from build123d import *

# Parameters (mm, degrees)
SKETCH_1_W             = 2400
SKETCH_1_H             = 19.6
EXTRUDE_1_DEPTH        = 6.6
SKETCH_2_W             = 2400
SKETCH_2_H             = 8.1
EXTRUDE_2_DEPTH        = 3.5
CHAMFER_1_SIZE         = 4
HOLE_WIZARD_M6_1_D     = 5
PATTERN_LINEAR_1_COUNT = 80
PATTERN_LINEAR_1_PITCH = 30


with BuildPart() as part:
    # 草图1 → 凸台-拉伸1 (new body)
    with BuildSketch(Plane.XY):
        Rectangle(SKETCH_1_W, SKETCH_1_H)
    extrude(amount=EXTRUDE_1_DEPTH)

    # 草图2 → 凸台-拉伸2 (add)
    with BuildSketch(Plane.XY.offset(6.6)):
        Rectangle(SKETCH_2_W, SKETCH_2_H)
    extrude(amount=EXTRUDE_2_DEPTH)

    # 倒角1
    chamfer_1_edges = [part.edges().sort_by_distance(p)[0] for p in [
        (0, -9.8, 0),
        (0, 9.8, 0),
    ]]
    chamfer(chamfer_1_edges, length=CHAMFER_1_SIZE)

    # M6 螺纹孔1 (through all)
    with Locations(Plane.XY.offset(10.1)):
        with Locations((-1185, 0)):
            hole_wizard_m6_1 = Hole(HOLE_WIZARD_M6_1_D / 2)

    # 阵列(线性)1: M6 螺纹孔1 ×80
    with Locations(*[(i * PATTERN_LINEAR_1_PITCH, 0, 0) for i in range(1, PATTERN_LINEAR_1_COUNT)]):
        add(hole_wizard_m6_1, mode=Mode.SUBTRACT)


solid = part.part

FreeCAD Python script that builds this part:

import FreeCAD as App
import Part
import Sketcher
from FreeCAD import Vector
Q = App.Units.Quantity


def edges_at(feature, points):
    """Names of the edges that pass closest to the given points."""
    edges = feature.Shape.Edges
    near = lambda p: min(range(len(edges)), key=lambda i: edges[i].distToShape(Part.Vertex(*p))[0])
    return sorted({f"Edge{near(p) + 1}" for p in points})

doc = App.newDocument("Part")
params = doc.addObject("Spreadsheet::Sheet", "Params")
for row, (alias, value) in enumerate([
    ("sketch1_width", "2400 mm"),
    ("sketch1_height", "19.6 mm"),
    ("pad1_length", "6.6 mm"),
    ("sketch2_width", "2400 mm"),
    ("sketch2_height", "8.1 mm"),
    ("pad2_length", "3.5 mm"),
    ("chamfer_size", "4 mm"),
    ("sketch3_diameter", "5 mm"),
    ("hole_diameter", "5 mm"),
    ("linearpattern_pitch", "30 mm"),
], start=1):
    params.set(f"A{row}", alias)
    params.set(f"B{row}", "=" + value)
    params.setAlias(f"B{row}", alias)

body = doc.addObject("PartDesign::Body", "Body")

# Sketch on XY plane
sketch1 = body.newObject("Sketcher::SketchObject", "Sketch")
sketch1.AttachmentSupport = (doc.getObject("XY_Plane"), [""])
sketch1.MapMode = "FlatFace"
sketch1.addGeometry([
    Part.LineSegment(Vector(-1200, 10, 0), Vector(-1200, -10, 0)),
    Part.LineSegment(Vector(-1200, -10, 0), Vector(1200, -10, 0)),
    Part.LineSegment(Vector(1200, -10, 0), Vector(1200, 10, 0)),
    Part.LineSegment(Vector(1200, 10, 0), Vector(-1200, 10, 0)),
], False)
sketch1.addConstraint([
    Sketcher.Constraint("Coincident", 0, 2, 1, 1),
    Sketcher.Constraint("Coincident", 1, 2, 2, 1),
    Sketcher.Constraint("Coincident", 2, 2, 3, 1),
    Sketcher.Constraint("Coincident", 3, 2, 0, 1),
    Sketcher.Constraint("Vertical", 0),
    Sketcher.Constraint("Horizontal", 1),
    Sketcher.Constraint("Vertical", 2),
    Sketcher.Constraint("Horizontal", 3),
    Sketcher.Constraint("Symmetric", 0, 2, 2, 2, -1, 1),
    Sketcher.Constraint("DistanceX", 1, 1, 1, 2, Q("2400 mm")),
    Sketcher.Constraint("DistanceY", 0, 2, 0, 1, Q("19.6 mm")),
])
sketch1.setExpression("Constraints[9]", "Params.sketch1_width")
sketch1.setExpression("Constraints[10]", "Params.sketch1_height")
pad1 = body.newObject("PartDesign::Pad", "Pad")
pad1.Profile = sketch1
pad1.setExpression("Length", "Params.pad1_length")

# Sketch on XY plane
sketch2 = body.newObject("Sketcher::SketchObject", "Sketch001")
sketch2.AttachmentSupport = (doc.getObject("XY_Plane"), [""])
sketch2.MapMode = "FlatFace"
sketch2.AttachmentOffset = App.Placement(Vector(0, 0, 6.6), App.Rotation())
sketch2.addGeometry([
    Part.LineSegment(Vector(-1200, 4, 0), Vector(-1200, -4, 0)),
    Part.LineSegment(Vector(-1200, -4, 0), Vector(1200, -4, 0)),
    Part.LineSegment(Vector(1200, -4, 0), Vector(1200, 4, 0)),
    Part.LineSegment(Vector(1200, 4, 0), Vector(-1200, 4, 0)),
], False)
sketch2.addConstraint([
    Sketcher.Constraint("Coincident", 0, 2, 1, 1),
    Sketcher.Constraint("Coincident", 1, 2, 2, 1),
    Sketcher.Constraint("Coincident", 2, 2, 3, 1),
    Sketcher.Constraint("Coincident", 3, 2, 0, 1),
    Sketcher.Constraint("Vertical", 0),
    Sketcher.Constraint("Horizontal", 1),
    Sketcher.Constraint("Vertical", 2),
    Sketcher.Constraint("Horizontal", 3),
    Sketcher.Constraint("Symmetric", 0, 2, 2, 2, -1, 1),
    Sketcher.Constraint("DistanceX", 1, 1, 1, 2, Q("2400 mm")),
    Sketcher.Constraint("DistanceY", 0, 2, 0, 1, Q("8.1 mm")),
])
sketch2.setExpression("Constraints[9]", "Params.sketch2_width")
sketch2.setExpression("Constraints[10]", "Params.sketch2_height")
pad2 = body.newObject("PartDesign::Pad", "Pad001")
pad2.Profile = sketch2
pad2.setExpression("Length", "Params.pad2_length")
doc.recompute()

chamfer = body.newObject("PartDesign::Chamfer", "Chamfer")
chamfer.Base = (pad2, edges_at(pad2, [(0, -9.8, 0), (0, 9.8, 0)]))
chamfer.setExpression("Size", "Params.chamfer_size")

# Sketch on XY plane
sketch3 = body.newObject("Sketcher::SketchObject", "Sketch002")
sketch3.AttachmentSupport = (doc.getObject("XY_Plane"), [""])
sketch3.MapMode = "FlatFace"
sketch3.AttachmentOffset = App.Placement(Vector(0, 0, 10.1), App.Rotation())
sketch3.addGeometry(Part.Circle(Vector(-1185, 0, 0), Vector(0, 0, 1), 2.5), False)
sketch3.addConstraint([
    Sketcher.Constraint("PointOnObject", 0, 3, -1),
    Sketcher.Constraint("Diameter", 0, Q("5 mm")),
    Sketcher.Constraint("DistanceX", 0, 3, -1, 1, Q("1185 mm")),
])
sketch3.setExpression("Constraints[1]", "Params.sketch3_diameter")
doc.recompute()
hole = body.newObject("PartDesign::Hole", "Hole")
hole.Profile = sketch3
hole.ThreadType = "None"
hole.setExpression("Diameter", "Params.hole_diameter")
hole.DepthType = "ThroughAll"
doc.recompute()

linearpattern = body.newObject("PartDesign::LinearPattern", "LinearPattern")
linearpattern.Originals = [hole]
linearpattern.Direction = (doc.getObject("X_Axis"), [""])
linearpattern.Mode = "offset"
linearpattern.setExpression("Offset", "Params.linearpattern_pitch")
linearpattern.Occurrences = 80
body.Tip = linearpattern

doc.recompute()
